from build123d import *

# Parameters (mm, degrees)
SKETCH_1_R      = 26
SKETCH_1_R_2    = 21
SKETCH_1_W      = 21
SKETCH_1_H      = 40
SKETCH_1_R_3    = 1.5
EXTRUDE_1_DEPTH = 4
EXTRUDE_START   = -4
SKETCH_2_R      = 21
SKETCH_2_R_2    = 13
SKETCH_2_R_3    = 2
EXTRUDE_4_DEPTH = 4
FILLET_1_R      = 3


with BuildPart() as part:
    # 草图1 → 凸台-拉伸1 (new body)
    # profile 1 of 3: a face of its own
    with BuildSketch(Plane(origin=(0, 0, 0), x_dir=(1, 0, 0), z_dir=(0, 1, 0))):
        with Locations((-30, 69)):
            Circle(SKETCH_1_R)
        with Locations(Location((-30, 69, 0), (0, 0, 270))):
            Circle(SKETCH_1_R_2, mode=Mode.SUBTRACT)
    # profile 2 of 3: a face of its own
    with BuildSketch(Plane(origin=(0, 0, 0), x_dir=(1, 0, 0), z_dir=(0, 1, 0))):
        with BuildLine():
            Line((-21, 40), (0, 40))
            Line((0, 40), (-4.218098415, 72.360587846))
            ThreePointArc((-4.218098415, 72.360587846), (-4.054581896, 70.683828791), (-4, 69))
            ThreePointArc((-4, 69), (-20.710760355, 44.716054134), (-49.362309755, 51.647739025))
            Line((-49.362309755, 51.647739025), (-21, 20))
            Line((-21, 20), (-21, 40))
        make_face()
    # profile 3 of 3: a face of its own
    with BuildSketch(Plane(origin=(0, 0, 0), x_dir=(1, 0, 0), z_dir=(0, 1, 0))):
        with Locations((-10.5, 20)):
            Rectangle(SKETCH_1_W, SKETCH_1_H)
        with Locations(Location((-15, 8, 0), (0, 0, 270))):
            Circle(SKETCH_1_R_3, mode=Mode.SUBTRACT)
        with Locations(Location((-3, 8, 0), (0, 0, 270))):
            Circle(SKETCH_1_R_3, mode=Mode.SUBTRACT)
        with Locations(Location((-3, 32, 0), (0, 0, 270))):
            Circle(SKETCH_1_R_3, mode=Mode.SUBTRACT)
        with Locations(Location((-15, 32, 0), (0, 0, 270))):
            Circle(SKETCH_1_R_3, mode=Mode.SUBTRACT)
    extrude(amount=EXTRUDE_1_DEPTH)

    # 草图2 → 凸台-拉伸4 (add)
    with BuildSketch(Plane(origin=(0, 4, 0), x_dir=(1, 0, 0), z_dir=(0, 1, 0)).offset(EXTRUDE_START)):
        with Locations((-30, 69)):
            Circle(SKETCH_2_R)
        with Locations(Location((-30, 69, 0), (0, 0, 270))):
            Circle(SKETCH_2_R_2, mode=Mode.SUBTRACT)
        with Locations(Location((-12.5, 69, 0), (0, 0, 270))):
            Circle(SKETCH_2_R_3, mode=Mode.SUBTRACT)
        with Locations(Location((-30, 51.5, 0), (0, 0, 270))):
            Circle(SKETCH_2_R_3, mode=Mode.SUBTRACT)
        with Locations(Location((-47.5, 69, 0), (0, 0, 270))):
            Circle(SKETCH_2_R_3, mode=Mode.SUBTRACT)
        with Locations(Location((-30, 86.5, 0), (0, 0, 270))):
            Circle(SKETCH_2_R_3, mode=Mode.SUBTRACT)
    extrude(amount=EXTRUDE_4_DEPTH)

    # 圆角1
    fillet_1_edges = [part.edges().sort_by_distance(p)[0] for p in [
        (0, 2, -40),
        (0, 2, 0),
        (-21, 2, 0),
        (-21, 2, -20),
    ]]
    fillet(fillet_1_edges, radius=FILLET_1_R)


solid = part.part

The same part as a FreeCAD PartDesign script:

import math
import FreeCAD as App
import Part
import Sketcher

V = App.Vector


def edges_at(feature, points):
    """Names of the edges that pass closest to the given points."""
    edges = feature.Shape.Edges
    near = lambda p: min(range(len(edges)), key=lambda i: edges[i].distToShape(Part.Vertex(*p))[0])
    return sorted({f"Edge{near(p) + 1}" for p in points})

doc = App.newDocument("Part")
body = doc.addObject("PartDesign::Body", "Body")

sketch1 = doc.addObject("Sketcher::SketchObject", "Sketch")
body.addObject(sketch1)
sketch1.AttachmentSupport = (doc.XZ_Plane, [""])
sketch1.MapMode = "FlatFace"
sketch1.addGeometry([
    Part.ArcOfCircle(Part.Circle(V(-30, -69, 0), V(0, 0, 1), 26), math.radians(138), math.radians(353)),
    Part.LineSegment(V(-49.4, -51.6, 0), V(-21, -20, 0)),
    Part.LineSegment(V(-21, -20, 0), V(-21, 0, 0)),
    Part.LineSegment(V(-21, 0, 0), V(0, 0, 0)),
    Part.LineSegment(V(0, 0, 0), V(0, -40, 0)),
    Part.LineSegment(V(0, -40, 0), V(-4.2, -72.4, 0)),
    Part.Circle(V(-30, -69, 0), V(0, 0, 1), 21),
    Part.Circle(V(-15, -32, 0), V(0, 0, 1), 1.5),
    Part.Circle(V(-3, -32, 0), V(0, 0, 1), 1.5),
    Part.Circle(V(-15, -8, 0), V(0, 0, 1), 1.5),
    Part.Circle(V(-3, -8, 0), V(0, 0, 1), 1.5),
], False)
sketch1.addConstraint([
    Sketcher.Constraint("Tangent", 0, 1, 1, 1),
    Sketcher.Constraint("Coincident", 1, 2, 2, 1),
    Sketcher.Constraint("Coincident", 2, 2, 3, 1),
    Sketcher.Constraint("Coincident", 3, 2, 4, 1),
    Sketcher.Constraint("Coincident", 4, 2, 5, 1),
    Sketcher.Constraint("Tangent", 5, 2, 0, 2),
    Sketcher.Constraint("Vertical", 2),
    Sketcher.Constraint("Horizontal", 3),
    Sketcher.Constraint("Vertical", 4),
    Sketcher.Constraint("Coincident", 3, 2, -1, 1),
    Sketcher.Constraint("Coincident", 6, 3, 0, 3),
    Sketcher.Constraint("Equal", 7, 8),
    Sketcher.Constraint("Equal", 8, 9),
    Sketcher.Constraint("Equal", 9, 10),
    Sketcher.Constraint("Horizontal", 7, 3, 8, 3),
    Sketcher.Constraint("Horizontal", 9, 3, 10, 3),
    Sketcher.Constraint("Vertical", 7, 3, 9, 3),
    Sketcher.Constraint("Vertical", 8, 3, 10, 3),
    Sketcher.Constraint("Diameter", 6, 42.0),
    Sketcher.Constraint("Diameter", 7, 3.0),
    Sketcher.Constraint("Radius", 0, 26.0),
    Sketcher.Constraint("DistanceX", 3, 1, 3, 2, 21.0),
    Sketcher.Constraint("DistanceY", 2, 1, 2, 2, 20.0),
    Sketcher.Constraint("DistanceY", 4, 2, 4, 1, 40.0),
    Sketcher.Constraint("DistanceX", 0, 3, -1, 1, 30.0),
    Sketcher.Constraint("DistanceY", 0, 3, -1, 1, 69.0),
    Sketcher.Constraint("DistanceX", 7, 3, -1, 1, 15.0),
    Sketcher.Constraint("DistanceY", 7, 3, -1, 1, 32.0),
    Sketcher.Constraint("DistanceX", 8, 3, -1, 1, 3.0),
    Sketcher.Constraint("DistanceY", 9, 3, -1, 1, 8.0),
])
pad1 = doc.addObject("PartDesign::Pad", "Pad")
body.addObject(pad1)
pad1.Profile = sketch1
pad1.Length = 4
pad1.Reversed = True

sketch2 = doc.addObject("Sketcher::SketchObject", "Sketch001")
body.addObject(sketch2)
sketch2.AttachmentSupport = (doc.XZ_Plane, [""])
sketch2.MapMode = "FlatFace"
sketch2.addGeometry([
    Part.Circle(V(-30, -69, 0), V(0, 0, 1), 21),
    Part.Circle(V(-30, -51.5, 0), V(0, 0, 1), 2),
    Part.Circle(V(-47.5, -69, 0), V(0, 0, 1), 2),
    Part.Circle(V(-30, -69, 0), V(0, 0, 1), 13),
    Part.Circle(V(-12.5, -69, 0), V(0, 0, 1), 2),
    Part.Circle(V(-30, -86.5, 0), V(0, 0, 1), 2),
], False)
sketch2.addConstraint([
    Sketcher.Constraint("Coincident", 3, 3, 0, 3),
    Sketcher.Constraint("Equal", 1, 2),
    Sketcher.Constraint("Equal", 2, 4),
    Sketcher.Constraint("Equal", 4, 5),
    Sketcher.Constraint("Horizontal", 0, 3, 2, 3),
    Sketcher.Constraint("Horizontal", 3, 3, 4, 3),
    Sketcher.Constraint("Vertical", 0, 3, 1, 3),
    Sketcher.Constraint("Vertical", 3, 3, 5, 3),
    Sketcher.Constraint("Diameter", 0, 42.0),
    Sketcher.Constraint("Diameter", 1, 4.0),
    Sketcher.Constraint("Diameter", 3, 26.0),
    Sketcher.Constraint("DistanceX", 0, 3, -1, 1, 30.0),
    Sketcher.Constraint("DistanceY", 0, 3, -1, 1, 69.0),
    Sketcher.Constraint("DistanceX", 2, 3, 4, 3, 35.0),
    Sketcher.Constraint("DistanceY", 5, 3, 1, 3, 35.0),
    Sketcher.Constraint("DistanceY", 1, 3, -1, 1, 51.5),
    Sketcher.Constraint("DistanceX", 2, 3, -1, 1, 47.5),
])
pad2 = doc.addObject("PartDesign::Pad", "Pad001")
body.addObject(pad2)
pad2.Profile = sketch2
pad2.Length = 4
pad2.Reversed = True
doc.recompute()

fillet = doc.addObject("PartDesign::Fillet", "Fillet")
body.addObject(fillet)
fillet.Base = (pad2, edges_at(pad2, [
    (0, 2, -40),
    (0, 2, 0),
    (-21, 2, 0),
    (-21, 2, -20),
]))
fillet.Radius = 3

doc.recompute()
